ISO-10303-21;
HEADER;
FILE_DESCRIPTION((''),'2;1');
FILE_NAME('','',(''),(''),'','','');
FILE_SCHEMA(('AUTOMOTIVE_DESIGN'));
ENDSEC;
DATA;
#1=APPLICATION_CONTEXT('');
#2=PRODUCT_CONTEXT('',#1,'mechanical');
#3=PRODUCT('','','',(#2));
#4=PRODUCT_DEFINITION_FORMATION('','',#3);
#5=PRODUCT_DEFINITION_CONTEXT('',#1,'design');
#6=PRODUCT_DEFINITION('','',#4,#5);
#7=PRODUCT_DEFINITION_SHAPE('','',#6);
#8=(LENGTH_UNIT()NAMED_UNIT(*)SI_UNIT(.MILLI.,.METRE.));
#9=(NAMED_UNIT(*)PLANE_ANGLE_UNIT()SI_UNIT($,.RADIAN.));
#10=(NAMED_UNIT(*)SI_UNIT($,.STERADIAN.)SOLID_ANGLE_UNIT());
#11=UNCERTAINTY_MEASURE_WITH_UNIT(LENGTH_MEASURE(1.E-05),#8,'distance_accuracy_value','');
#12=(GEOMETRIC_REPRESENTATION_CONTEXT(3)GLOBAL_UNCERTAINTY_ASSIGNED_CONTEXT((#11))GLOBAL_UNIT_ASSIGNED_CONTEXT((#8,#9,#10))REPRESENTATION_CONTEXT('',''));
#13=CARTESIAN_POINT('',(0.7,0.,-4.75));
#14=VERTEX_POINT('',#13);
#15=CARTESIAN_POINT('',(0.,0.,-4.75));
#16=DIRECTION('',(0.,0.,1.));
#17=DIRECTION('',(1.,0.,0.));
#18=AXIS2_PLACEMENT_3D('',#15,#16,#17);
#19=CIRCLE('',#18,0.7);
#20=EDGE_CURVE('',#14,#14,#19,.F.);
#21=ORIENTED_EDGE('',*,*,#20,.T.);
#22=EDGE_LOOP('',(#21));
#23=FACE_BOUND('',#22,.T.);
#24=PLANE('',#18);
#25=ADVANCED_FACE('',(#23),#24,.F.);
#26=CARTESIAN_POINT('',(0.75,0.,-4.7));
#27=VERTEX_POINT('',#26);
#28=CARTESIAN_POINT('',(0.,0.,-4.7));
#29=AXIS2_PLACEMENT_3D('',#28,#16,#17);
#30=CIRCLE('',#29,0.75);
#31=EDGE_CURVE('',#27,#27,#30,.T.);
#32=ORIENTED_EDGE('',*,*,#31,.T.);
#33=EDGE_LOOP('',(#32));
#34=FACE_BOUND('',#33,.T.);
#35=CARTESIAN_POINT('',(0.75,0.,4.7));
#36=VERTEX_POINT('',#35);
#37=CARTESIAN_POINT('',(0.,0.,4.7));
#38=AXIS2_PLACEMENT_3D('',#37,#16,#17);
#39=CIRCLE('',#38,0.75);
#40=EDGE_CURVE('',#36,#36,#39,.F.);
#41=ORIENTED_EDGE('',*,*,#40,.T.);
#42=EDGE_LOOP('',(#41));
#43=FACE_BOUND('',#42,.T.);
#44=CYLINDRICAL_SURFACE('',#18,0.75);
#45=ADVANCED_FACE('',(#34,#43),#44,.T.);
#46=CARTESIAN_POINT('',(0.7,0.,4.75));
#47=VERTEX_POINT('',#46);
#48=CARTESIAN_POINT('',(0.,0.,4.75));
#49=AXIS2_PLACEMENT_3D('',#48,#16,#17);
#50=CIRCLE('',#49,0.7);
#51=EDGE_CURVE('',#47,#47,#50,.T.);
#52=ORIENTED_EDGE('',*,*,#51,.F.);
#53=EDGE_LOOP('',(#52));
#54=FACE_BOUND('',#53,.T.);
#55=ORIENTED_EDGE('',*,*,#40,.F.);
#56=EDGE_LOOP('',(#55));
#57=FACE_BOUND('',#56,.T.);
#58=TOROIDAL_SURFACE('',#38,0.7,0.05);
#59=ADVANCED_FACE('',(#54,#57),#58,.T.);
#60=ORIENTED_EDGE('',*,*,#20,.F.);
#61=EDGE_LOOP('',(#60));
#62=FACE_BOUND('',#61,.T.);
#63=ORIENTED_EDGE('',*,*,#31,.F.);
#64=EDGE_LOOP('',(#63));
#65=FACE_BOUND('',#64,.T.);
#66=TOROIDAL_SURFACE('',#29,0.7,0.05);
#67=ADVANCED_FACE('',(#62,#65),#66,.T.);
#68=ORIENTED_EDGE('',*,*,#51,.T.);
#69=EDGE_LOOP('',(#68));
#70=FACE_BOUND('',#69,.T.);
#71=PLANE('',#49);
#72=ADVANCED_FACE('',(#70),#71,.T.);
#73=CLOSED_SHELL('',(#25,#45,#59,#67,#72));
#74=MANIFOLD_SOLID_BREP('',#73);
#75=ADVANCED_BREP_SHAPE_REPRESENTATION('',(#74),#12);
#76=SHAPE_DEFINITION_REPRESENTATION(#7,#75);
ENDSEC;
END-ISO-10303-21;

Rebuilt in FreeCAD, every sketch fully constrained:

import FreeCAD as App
import Part
import Sketcher
from FreeCAD import Vector


def edges_at(feature, points):
    """Names of the edges that pass closest to the given points."""
    edges = feature.Shape.Edges
    near = lambda p: min(range(len(edges)), key=lambda i: edges[i].distToShape(Part.Vertex(*p))[0])
    return sorted({f"Edge{near(p) + 1}" for p in points})

doc = App.newDocument("Part")
params = doc.addObject("Spreadsheet::Sheet", "Params")
for row, (alias, value) in enumerate([
    ("sketch1_diameter", "1.5 mm"),
    ("pad1_length", "4.75 mm"),
    ("pad1_length2", "4.75 mm"),
    ("fillet_radius", "0.05 mm"),
], start=1):
    params.set(f"A{row}", alias)
    params.set(f"B{row}", "=" + value)
    params.setAlias(f"B{row}", alias)

body = doc.addObject("PartDesign::Body", "Body")

# Sketch on XY plane
sketch1 = body.newObject("Sketcher::SketchObject", "Sketch")
sketch1.AttachmentSupport = (doc.getObject("XY_Plane"), [""])
sketch1.MapMode = "FlatFace"
sketch1.addGeometry(Part.Circle(Vector(0, 0, 0), Vector(0, 0, 1), 0.75), False)
sketch1.addConstraint([
    Sketcher.Constraint("Coincident", 0, 3, -1, 1),
    Sketcher.Constraint("Diameter", 0, 1.5),
])
sketch1.setExpression("Constraints[1]", "Params.sketch1_diameter")
pad1 = body.newObject("PartDesign::Pad", "Pad")
pad1.Profile = sketch1
pad1.Type = "TwoLengths"
pad1.setExpression("Length", "Params.pad1_length")
pad1.setExpression("Length2", "Params.pad1_length2")
doc.recompute()

fillet = body.newObject("PartDesign::Fillet", "Fillet")
fillet.Base = (pad1, edges_at(pad1, [(-0.75, 0, -4.75), (-0.75, 0, 4.75)]))
fillet.setExpression("Radius", "Params.fillet_radius")

doc.recompute()
